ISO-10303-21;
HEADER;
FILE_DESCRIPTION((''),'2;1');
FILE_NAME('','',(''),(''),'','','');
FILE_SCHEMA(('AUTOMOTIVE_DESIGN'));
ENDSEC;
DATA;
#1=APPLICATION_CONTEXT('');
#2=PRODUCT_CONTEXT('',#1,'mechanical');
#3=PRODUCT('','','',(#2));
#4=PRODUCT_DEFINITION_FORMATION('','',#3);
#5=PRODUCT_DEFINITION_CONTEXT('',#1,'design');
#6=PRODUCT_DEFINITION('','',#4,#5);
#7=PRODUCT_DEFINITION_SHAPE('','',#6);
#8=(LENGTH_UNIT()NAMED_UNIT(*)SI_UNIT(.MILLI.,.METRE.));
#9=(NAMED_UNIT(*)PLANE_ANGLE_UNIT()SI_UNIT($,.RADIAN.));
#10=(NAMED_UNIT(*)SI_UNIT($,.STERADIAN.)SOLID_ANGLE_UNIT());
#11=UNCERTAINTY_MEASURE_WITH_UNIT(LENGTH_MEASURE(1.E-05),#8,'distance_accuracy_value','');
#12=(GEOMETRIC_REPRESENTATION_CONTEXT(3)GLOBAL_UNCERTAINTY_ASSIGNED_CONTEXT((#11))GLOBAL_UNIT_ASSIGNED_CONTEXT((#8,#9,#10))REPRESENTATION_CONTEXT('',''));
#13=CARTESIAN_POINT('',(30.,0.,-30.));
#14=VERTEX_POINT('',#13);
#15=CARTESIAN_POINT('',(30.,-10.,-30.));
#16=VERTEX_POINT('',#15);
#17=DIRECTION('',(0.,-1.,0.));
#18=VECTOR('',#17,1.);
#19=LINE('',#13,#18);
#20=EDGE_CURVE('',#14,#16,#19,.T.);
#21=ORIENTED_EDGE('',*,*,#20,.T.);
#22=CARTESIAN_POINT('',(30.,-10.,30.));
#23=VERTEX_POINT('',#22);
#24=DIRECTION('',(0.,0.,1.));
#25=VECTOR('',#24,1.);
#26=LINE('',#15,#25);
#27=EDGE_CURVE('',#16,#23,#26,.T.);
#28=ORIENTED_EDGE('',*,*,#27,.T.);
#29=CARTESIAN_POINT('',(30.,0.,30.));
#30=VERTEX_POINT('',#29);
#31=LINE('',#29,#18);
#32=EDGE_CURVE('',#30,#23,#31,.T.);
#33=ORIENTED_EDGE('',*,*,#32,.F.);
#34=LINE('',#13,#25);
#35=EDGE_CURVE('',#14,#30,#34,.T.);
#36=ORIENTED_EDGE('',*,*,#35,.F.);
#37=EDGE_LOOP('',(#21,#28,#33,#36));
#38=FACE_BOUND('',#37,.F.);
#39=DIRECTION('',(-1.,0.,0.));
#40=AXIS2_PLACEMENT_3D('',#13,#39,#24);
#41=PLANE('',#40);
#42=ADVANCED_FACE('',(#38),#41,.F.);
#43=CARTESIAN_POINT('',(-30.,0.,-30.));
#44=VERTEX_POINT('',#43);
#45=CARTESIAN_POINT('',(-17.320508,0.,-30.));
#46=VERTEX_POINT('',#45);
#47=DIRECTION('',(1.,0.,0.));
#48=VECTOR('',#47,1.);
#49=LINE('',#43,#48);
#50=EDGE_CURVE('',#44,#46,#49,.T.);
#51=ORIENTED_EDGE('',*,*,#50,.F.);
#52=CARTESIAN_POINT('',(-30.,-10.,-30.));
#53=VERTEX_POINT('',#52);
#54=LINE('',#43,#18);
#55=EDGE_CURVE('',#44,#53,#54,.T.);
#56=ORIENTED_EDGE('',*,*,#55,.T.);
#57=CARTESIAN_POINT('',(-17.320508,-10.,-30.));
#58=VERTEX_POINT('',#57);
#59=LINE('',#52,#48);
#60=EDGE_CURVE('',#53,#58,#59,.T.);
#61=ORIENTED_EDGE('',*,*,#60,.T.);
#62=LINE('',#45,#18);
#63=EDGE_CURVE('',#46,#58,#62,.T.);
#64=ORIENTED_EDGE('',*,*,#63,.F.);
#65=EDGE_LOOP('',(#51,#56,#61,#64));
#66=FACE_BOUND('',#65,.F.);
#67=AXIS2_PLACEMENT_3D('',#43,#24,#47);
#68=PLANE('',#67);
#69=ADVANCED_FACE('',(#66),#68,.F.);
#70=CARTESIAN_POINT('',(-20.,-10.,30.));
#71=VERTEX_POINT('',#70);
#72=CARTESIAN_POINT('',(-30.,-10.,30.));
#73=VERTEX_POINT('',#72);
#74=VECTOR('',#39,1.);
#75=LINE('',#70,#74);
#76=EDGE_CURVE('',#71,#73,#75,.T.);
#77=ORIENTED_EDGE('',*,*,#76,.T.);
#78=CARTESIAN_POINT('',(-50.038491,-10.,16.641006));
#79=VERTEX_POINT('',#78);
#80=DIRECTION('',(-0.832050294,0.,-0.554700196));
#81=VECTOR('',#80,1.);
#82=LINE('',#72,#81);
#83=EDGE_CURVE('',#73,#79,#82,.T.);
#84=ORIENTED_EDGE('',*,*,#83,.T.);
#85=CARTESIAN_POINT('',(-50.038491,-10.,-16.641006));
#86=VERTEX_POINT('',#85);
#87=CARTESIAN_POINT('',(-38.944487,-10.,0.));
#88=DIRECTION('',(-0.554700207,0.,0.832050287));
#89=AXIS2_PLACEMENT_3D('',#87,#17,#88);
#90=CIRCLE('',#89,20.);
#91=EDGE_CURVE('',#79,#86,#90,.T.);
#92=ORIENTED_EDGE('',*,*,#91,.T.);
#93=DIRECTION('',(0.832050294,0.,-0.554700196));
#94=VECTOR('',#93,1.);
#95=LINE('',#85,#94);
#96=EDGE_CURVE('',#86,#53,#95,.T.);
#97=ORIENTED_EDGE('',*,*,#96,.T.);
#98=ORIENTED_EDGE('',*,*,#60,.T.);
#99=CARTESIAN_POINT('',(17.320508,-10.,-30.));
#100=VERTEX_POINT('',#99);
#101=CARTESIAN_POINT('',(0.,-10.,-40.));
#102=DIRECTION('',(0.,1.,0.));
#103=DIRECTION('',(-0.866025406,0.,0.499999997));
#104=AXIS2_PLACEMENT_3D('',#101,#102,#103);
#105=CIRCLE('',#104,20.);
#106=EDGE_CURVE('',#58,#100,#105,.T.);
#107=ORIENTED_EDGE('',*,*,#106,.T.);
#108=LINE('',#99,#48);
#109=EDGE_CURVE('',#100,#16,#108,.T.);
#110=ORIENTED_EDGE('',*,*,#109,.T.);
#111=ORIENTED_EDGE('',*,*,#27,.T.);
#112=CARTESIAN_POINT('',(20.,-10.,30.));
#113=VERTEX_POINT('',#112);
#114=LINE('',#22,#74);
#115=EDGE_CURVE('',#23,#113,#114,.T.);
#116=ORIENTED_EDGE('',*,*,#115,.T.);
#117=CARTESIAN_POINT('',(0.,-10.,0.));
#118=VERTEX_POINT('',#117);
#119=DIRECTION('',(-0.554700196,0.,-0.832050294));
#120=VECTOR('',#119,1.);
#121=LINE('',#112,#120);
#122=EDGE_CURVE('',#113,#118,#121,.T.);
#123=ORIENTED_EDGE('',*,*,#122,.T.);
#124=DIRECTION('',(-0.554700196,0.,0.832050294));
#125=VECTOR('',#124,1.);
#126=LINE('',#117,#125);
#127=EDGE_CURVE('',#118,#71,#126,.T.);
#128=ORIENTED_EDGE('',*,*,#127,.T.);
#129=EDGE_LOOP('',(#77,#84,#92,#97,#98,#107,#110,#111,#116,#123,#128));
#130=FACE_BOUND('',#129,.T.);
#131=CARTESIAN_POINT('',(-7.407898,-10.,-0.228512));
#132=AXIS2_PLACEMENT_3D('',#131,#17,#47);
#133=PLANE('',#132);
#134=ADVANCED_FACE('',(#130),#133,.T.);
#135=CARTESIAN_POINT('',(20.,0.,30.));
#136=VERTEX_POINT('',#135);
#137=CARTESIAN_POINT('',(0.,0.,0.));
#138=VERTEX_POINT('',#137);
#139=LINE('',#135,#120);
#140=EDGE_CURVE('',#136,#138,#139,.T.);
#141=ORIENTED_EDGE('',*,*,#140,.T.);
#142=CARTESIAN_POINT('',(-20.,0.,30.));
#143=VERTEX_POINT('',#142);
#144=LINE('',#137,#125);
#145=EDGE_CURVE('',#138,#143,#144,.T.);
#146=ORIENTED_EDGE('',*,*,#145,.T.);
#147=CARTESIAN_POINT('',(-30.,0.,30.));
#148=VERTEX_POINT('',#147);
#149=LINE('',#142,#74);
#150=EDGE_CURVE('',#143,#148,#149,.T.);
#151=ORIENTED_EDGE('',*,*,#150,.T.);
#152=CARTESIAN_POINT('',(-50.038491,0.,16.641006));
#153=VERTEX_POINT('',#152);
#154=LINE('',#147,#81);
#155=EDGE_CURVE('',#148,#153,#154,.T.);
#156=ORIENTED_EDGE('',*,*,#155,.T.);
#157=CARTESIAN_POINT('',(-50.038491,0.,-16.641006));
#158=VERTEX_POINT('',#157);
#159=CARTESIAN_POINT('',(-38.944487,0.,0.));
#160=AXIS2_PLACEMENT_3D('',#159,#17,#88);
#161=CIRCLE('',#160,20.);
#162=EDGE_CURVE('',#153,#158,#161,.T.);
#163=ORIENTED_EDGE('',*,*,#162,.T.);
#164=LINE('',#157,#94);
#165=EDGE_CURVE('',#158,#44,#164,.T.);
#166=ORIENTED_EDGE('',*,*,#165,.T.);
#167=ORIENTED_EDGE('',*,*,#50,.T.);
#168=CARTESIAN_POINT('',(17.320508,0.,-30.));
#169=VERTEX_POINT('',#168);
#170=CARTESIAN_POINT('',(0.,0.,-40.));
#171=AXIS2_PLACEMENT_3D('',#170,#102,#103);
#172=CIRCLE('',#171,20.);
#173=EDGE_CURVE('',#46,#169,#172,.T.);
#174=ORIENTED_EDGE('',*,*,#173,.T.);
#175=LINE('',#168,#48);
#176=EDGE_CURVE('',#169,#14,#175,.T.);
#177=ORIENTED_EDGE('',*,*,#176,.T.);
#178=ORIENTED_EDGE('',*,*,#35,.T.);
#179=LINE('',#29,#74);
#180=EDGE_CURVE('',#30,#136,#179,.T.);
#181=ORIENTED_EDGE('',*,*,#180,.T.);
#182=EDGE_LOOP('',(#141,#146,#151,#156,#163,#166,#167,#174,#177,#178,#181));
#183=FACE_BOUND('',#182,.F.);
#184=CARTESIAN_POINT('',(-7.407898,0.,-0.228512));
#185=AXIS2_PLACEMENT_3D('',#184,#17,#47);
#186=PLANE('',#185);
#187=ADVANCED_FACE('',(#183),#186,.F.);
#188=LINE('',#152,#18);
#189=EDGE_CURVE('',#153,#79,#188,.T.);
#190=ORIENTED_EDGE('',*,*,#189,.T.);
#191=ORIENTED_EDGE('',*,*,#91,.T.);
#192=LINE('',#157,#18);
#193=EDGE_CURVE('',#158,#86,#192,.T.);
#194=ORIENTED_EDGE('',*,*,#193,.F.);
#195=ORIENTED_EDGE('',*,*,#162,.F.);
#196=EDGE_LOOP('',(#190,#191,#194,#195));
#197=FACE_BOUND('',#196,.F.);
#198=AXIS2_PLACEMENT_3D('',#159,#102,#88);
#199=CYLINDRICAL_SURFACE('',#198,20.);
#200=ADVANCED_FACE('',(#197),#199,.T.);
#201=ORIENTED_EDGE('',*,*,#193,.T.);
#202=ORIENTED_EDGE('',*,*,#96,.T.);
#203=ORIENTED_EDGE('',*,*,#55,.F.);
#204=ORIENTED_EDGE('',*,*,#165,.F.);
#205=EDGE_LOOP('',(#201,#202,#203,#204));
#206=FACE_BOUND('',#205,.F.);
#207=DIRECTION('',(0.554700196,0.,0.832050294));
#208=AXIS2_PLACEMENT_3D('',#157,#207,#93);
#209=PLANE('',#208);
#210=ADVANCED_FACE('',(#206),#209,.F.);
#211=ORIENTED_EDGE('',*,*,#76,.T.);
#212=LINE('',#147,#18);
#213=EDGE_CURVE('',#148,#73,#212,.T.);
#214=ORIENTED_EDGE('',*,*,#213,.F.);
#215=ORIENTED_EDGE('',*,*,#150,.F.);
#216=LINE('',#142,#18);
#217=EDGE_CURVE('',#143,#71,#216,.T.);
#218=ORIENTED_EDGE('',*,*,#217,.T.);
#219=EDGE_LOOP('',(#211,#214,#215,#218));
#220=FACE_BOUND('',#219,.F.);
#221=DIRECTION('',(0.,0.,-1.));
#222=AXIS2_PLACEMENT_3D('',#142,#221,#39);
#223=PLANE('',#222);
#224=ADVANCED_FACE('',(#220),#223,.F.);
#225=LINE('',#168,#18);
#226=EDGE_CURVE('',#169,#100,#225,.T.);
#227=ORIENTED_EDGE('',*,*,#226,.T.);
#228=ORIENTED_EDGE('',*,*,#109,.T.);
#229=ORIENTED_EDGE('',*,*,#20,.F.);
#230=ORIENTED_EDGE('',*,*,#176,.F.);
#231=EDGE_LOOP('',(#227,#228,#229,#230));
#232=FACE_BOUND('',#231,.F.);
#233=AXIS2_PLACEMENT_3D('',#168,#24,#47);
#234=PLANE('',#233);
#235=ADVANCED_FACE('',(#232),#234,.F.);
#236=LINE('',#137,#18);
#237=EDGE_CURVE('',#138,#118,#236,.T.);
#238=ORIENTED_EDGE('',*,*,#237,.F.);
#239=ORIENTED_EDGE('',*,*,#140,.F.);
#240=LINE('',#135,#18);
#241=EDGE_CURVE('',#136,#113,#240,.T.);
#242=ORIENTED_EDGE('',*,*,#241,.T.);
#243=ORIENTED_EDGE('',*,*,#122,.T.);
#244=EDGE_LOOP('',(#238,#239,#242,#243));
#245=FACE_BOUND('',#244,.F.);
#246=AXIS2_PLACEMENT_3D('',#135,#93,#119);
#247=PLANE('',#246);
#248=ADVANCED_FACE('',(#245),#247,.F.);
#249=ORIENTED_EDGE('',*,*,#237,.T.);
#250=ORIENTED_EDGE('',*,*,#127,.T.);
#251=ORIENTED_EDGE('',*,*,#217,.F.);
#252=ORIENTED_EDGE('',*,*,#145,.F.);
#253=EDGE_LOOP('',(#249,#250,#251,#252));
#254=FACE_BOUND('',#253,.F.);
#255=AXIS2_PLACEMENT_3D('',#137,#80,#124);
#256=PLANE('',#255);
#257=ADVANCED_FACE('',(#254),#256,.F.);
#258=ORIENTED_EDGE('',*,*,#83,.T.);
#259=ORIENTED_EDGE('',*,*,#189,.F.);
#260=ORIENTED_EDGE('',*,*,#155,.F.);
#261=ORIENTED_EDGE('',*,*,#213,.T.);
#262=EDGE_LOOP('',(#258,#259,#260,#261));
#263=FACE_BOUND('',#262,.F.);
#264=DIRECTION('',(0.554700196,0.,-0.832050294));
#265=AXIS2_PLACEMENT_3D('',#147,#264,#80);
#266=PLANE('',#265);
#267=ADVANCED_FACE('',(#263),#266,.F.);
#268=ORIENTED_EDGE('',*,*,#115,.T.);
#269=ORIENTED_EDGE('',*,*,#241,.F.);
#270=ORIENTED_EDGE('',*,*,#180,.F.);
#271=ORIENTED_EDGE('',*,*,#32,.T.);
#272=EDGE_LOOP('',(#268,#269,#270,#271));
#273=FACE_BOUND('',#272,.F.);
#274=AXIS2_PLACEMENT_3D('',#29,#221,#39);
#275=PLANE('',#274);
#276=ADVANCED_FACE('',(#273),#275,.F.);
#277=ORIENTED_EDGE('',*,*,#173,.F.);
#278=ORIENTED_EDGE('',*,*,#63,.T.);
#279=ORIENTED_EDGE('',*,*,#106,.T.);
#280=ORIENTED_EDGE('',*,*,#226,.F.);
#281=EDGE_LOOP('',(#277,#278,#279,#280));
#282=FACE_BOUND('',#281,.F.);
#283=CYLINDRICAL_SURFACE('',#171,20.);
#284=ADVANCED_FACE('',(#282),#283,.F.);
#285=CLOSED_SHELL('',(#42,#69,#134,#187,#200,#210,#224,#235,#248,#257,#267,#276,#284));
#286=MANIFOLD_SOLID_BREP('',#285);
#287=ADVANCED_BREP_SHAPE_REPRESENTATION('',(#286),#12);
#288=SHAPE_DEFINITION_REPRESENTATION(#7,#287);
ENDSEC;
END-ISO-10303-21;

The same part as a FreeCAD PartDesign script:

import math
import FreeCAD as App
import Part
import Sketcher
from FreeCAD import Vector

doc = App.newDocument("Part")
body = doc.addObject("PartDesign::Body", "Body")

# Sketch on XZ plane
sketch1 = body.newObject("Sketcher::SketchObject", "Sketch")
sketch1.AttachmentSupport = (doc.getObject("XZ_Plane"), [""])
sketch1.MapMode = "FlatFace"
sketch1.addGeometry([
    Part.LineSegment(Vector(0, 0, 0), Vector(-20, 30, 0)),  # 0
    Part.LineSegment(Vector(-20, 30, 0), Vector(-30, 30, 0)),  # 1
    Part.LineSegment(Vector(-30, 30, 0), Vector(-50.038491, 16.641006, 0)),  # 2
    Part.ArcOfCircle(Part.Circle(Vector(-38.944487, 0, 0), Vector(0, 0, 1), 20), math.radians(123.690068), math.radians(236.309932)),  # 3
    Part.LineSegment(Vector(-50.038491, -16.641006, 0), Vector(-30, -30, 0)),  # 4
    Part.LineSegment(Vector(-30, -30, 0), Vector(-17.320508, -30, 0)),  # 5
    Part.ArcOfCircle(Part.Circle(Vector(0, -40, 0), Vector(0, 0, 1), 20), math.radians(30), math.radians(150)),  # 6
    Part.LineSegment(Vector(17.320508, -30, 0), Vector(30, -30, 0)),  # 7
    Part.LineSegment(Vector(30, -30, 0), Vector(30, 30, 0)),  # 8
    Part.LineSegment(Vector(30, 30, 0), Vector(20, 30, 0)),  # 9
    Part.LineSegment(Vector(20, 30, 0), Vector(0, 0, 0)),  # 10
], False)
sketch1.addConstraint([
    Sketcher.Constraint("Coincident", 0, 2, 1, 1),
    Sketcher.Constraint("Coincident", 1, 2, 2, 1),
    Sketcher.Constraint("Tangent", 2, 2, 3, 1),
    Sketcher.Constraint("Tangent", 3, 2, 4, 1),
    Sketcher.Constraint("Coincident", 4, 2, 5, 1),
    Sketcher.Constraint("Coincident", 5, 2, 6, 2),
    Sketcher.Constraint("Coincident", 6, 1, 7, 1),
    Sketcher.Constraint("Coincident", 7, 2, 8, 1),
    Sketcher.Constraint("Coincident", 8, 2, 9, 1),
    Sketcher.Constraint("Coincident", 9, 2, 10, 1),
    Sketcher.Constraint("Coincident", 10, 2, 0, 1),
    Sketcher.Constraint("Horizontal", 1),
    Sketcher.Constraint("Horizontal", 5),
    Sketcher.Constraint("Horizontal", 7),
    Sketcher.Constraint("Vertical", 8),
    Sketcher.Constraint("Horizontal", 9),
    Sketcher.Constraint("Coincident", 10, 2, -1, 1),
    Sketcher.Constraint("Equal", 3, 6),
    Sketcher.Constraint("Symmetric", 1, 2, 7, 2, -1, 1),
    Sketcher.Constraint("Symmetric", 4, 2, 8, 2, -1, 1),
    Sketcher.Constraint("Symmetric", 5, 2, 6, 1, -2),
    Sketcher.Constraint("PointOnObject", 3, 3, -1),
    Sketcher.Constraint("Perpendicular", 0, 2),
    Sketcher.Constraint("Perpendicular", 4, 10),
    Sketcher.Constraint("Radius", 3, 20.0),
    Sketcher.Constraint("DistanceX", 1, 2, 1, 1, 10.0),
    Sketcher.Constraint("DistanceY", 8, 1, 8, 2, 60.0),
    Sketcher.Constraint("DistanceY", 6, 3, -1, 1, 40.0),
    Sketcher.Constraint("DistanceX", 0, 2, -1, 1, 20.0),
])
pad1 = body.newObject("PartDesign::Pad", "Pad")
pad1.Profile = sketch1
pad1.Length = 10

doc.recompute()
